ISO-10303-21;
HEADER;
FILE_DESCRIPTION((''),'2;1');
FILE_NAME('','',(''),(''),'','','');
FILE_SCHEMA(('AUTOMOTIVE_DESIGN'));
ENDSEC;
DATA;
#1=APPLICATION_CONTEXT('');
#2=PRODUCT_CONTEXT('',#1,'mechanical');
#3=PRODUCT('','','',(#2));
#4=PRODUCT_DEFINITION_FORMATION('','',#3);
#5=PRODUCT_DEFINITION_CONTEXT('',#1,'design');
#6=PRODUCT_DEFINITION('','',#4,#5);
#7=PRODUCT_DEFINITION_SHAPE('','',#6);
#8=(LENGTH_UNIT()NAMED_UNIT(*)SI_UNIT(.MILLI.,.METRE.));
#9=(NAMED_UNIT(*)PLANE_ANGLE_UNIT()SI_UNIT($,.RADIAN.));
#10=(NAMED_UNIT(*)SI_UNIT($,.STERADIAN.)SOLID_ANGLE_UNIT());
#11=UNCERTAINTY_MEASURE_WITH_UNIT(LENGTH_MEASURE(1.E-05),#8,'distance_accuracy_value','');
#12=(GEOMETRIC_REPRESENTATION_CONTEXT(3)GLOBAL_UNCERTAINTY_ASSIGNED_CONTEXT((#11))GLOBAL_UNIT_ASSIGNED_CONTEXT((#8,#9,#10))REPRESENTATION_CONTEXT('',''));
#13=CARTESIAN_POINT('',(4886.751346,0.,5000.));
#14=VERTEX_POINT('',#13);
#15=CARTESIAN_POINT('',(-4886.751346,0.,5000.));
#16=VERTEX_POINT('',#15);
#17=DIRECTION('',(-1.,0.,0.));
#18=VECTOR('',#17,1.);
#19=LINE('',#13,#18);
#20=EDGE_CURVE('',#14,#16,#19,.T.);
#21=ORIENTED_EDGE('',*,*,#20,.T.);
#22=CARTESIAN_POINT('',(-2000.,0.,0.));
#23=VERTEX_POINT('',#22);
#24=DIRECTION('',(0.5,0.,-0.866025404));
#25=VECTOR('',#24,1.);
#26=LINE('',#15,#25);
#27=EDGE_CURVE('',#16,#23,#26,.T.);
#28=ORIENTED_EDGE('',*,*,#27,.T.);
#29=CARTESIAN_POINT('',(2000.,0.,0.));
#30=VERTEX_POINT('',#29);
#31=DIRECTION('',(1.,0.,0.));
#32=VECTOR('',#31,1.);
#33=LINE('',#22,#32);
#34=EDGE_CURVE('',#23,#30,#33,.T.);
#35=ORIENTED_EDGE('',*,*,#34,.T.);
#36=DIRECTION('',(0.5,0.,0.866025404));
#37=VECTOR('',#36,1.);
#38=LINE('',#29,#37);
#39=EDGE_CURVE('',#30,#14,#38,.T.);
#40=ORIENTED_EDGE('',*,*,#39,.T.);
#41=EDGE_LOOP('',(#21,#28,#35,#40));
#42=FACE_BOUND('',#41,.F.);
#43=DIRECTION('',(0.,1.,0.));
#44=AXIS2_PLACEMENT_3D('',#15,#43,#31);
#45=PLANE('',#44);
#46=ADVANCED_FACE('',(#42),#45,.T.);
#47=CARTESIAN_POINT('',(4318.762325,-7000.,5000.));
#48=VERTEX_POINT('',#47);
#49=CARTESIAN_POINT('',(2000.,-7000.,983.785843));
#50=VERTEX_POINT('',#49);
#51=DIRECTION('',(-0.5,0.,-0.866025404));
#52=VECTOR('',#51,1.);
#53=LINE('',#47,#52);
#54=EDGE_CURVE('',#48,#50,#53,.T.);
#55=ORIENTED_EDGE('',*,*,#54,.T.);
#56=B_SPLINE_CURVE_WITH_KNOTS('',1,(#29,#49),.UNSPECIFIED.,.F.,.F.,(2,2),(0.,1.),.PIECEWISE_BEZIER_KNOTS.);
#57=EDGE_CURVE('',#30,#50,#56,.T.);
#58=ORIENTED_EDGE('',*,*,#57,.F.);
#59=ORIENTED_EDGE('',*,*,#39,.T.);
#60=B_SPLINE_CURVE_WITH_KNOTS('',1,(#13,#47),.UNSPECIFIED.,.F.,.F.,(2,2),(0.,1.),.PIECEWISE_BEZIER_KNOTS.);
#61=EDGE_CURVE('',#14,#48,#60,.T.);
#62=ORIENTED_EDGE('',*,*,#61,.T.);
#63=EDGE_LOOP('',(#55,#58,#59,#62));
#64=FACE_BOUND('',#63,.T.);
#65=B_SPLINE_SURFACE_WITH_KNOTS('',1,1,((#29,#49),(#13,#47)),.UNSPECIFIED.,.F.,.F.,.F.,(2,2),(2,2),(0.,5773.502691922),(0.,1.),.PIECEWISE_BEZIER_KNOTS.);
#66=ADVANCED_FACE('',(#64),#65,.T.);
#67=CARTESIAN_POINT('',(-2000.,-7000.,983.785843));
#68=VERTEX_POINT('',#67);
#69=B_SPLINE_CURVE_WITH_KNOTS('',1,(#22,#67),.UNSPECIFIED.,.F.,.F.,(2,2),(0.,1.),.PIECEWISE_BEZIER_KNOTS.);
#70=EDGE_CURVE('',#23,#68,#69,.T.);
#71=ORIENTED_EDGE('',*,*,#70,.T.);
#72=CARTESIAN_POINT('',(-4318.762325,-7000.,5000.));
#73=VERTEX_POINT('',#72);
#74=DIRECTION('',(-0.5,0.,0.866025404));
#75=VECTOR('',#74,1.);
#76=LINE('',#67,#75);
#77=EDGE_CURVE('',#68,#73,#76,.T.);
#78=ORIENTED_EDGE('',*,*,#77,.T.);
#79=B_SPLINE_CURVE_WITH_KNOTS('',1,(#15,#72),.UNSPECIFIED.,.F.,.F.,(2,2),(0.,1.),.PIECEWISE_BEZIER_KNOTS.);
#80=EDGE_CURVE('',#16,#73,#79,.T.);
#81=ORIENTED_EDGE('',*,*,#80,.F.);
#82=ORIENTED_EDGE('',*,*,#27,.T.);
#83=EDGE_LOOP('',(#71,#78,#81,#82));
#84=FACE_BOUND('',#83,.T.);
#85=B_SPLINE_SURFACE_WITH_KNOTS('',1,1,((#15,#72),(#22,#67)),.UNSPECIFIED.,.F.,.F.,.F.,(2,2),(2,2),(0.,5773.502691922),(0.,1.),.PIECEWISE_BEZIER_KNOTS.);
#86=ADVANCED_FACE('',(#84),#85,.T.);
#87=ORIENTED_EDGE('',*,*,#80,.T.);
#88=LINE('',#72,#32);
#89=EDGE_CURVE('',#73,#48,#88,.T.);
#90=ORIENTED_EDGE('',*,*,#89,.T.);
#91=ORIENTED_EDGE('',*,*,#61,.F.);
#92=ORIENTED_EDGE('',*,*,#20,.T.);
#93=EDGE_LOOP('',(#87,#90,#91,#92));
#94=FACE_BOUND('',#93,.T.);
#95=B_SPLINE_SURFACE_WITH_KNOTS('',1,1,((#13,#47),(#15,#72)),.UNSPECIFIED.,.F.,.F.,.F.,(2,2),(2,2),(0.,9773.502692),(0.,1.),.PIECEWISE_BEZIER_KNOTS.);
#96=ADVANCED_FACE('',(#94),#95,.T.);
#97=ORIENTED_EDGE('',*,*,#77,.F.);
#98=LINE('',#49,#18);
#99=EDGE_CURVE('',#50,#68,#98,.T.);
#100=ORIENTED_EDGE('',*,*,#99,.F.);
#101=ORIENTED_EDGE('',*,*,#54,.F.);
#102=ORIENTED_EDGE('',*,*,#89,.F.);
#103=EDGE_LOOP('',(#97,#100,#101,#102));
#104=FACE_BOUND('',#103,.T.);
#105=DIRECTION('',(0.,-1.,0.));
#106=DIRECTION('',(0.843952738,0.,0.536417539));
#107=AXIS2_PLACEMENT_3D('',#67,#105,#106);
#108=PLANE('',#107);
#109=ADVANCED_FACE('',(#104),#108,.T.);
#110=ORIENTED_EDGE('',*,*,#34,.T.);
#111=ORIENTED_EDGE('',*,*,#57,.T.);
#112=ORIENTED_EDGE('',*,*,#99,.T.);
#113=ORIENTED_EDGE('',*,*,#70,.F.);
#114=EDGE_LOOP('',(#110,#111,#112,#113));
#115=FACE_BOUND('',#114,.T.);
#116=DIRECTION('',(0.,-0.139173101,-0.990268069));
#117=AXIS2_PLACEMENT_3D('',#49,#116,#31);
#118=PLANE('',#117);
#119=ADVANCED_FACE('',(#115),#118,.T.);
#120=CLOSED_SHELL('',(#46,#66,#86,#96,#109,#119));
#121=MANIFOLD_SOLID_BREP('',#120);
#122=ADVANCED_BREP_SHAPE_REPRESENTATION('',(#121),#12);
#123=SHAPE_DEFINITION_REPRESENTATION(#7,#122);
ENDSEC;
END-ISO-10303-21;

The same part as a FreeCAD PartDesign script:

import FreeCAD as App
import Part
import Sketcher
Q = App.Units.Quantity


def add_polygon(sketch, points):
    """Adds a closed chain of lines whose ends are joined by coincident constraints."""
    first, n = sketch.GeometryCount, len(points)
    for a, b in zip(points, points[1:] + points[:1]):
        sketch.addGeometry(Part.LineSegment(App.Vector(*a, 0), App.Vector(*b, 0)), False)
    for i in range(n):
        sketch.addConstraint(Sketcher.Constraint("Coincident", first + i, 2, first + (i + 1) % n, 1))

doc = App.newDocument("Part")
body = doc.addObject("PartDesign::Body", "Body")

# Sketch on XZ plane
sketch1 = body.newObject("Sketcher::SketchObject", "Sketch")
sketch1.AttachmentSupport = (doc.getObject("XZ_Plane"), [""])
sketch1.MapMode = "FlatFace"
add_polygon(sketch1, [(-4887, 5000), (-2000, 0), (2000, 0), (4887, 5000)])  # lines 0-3
sketch1.addConstraint(Sketcher.Constraint("Horizontal", 1))
sketch1.addConstraint(Sketcher.Constraint("Horizontal", 3))
sketch1.addConstraint(Sketcher.Constraint("Symmetric", 0, 2, 1, 2, -1, 1))
sketch1.addConstraint(Sketcher.Constraint("Equal", 0, 2))
sketch1.addConstraint(Sketcher.Constraint("DistanceX", 1, 1, 1, 2, 4000.0))
sketch1.addConstraint(Sketcher.Constraint("Angle", 0, Q("-60 deg")))
sketch1.addConstraint(Sketcher.Constraint("DistanceY", -1, 1, 2, 2, 5000.0))

# Sketch on XZ plane
sketch2 = body.newObject("Sketcher::SketchObject", "Sketch001")
sketch2.AttachmentSupport = (doc.getObject("XZ_Plane"), [""])
sketch2.MapMode = "FlatFace"
sketch2.AttachmentOffset = App.Placement(App.Vector(0, 0, 7000), App.Rotation())
add_polygon(sketch2, [(-4319, 5000), (4319, 5000), (2000, 984), (-2000, 984)])  # lines 0-3
sketch2.addConstraint(Sketcher.Constraint("Horizontal", 0))
sketch2.addConstraint(Sketcher.Constraint("Horizontal", 2))
sketch2.addConstraint(Sketcher.Constraint("Equal", 1, 3))
sketch2.addConstraint(Sketcher.Constraint("DistanceX", 2, 2, 2, 1, 4000.0))
sketch2.addConstraint(Sketcher.Constraint("Angle", 1, Q("-120 deg")))
sketch2.addConstraint(Sketcher.Constraint("DistanceY", -1, 1, 0, 2, 5000.0))
sketch2.addConstraint(Sketcher.Constraint("DistanceX", -1, 1, 1, 2, 2000.0))
sketch2.addConstraint(Sketcher.Constraint("DistanceX", 0, 1, 0, 2, 8637.52465))

additiveloft = body.newObject("PartDesign::AdditiveLoft", "AdditiveLoft")
additiveloft.Profile = sketch1
additiveloft.Sections = [sketch2]

doc.recompute()
